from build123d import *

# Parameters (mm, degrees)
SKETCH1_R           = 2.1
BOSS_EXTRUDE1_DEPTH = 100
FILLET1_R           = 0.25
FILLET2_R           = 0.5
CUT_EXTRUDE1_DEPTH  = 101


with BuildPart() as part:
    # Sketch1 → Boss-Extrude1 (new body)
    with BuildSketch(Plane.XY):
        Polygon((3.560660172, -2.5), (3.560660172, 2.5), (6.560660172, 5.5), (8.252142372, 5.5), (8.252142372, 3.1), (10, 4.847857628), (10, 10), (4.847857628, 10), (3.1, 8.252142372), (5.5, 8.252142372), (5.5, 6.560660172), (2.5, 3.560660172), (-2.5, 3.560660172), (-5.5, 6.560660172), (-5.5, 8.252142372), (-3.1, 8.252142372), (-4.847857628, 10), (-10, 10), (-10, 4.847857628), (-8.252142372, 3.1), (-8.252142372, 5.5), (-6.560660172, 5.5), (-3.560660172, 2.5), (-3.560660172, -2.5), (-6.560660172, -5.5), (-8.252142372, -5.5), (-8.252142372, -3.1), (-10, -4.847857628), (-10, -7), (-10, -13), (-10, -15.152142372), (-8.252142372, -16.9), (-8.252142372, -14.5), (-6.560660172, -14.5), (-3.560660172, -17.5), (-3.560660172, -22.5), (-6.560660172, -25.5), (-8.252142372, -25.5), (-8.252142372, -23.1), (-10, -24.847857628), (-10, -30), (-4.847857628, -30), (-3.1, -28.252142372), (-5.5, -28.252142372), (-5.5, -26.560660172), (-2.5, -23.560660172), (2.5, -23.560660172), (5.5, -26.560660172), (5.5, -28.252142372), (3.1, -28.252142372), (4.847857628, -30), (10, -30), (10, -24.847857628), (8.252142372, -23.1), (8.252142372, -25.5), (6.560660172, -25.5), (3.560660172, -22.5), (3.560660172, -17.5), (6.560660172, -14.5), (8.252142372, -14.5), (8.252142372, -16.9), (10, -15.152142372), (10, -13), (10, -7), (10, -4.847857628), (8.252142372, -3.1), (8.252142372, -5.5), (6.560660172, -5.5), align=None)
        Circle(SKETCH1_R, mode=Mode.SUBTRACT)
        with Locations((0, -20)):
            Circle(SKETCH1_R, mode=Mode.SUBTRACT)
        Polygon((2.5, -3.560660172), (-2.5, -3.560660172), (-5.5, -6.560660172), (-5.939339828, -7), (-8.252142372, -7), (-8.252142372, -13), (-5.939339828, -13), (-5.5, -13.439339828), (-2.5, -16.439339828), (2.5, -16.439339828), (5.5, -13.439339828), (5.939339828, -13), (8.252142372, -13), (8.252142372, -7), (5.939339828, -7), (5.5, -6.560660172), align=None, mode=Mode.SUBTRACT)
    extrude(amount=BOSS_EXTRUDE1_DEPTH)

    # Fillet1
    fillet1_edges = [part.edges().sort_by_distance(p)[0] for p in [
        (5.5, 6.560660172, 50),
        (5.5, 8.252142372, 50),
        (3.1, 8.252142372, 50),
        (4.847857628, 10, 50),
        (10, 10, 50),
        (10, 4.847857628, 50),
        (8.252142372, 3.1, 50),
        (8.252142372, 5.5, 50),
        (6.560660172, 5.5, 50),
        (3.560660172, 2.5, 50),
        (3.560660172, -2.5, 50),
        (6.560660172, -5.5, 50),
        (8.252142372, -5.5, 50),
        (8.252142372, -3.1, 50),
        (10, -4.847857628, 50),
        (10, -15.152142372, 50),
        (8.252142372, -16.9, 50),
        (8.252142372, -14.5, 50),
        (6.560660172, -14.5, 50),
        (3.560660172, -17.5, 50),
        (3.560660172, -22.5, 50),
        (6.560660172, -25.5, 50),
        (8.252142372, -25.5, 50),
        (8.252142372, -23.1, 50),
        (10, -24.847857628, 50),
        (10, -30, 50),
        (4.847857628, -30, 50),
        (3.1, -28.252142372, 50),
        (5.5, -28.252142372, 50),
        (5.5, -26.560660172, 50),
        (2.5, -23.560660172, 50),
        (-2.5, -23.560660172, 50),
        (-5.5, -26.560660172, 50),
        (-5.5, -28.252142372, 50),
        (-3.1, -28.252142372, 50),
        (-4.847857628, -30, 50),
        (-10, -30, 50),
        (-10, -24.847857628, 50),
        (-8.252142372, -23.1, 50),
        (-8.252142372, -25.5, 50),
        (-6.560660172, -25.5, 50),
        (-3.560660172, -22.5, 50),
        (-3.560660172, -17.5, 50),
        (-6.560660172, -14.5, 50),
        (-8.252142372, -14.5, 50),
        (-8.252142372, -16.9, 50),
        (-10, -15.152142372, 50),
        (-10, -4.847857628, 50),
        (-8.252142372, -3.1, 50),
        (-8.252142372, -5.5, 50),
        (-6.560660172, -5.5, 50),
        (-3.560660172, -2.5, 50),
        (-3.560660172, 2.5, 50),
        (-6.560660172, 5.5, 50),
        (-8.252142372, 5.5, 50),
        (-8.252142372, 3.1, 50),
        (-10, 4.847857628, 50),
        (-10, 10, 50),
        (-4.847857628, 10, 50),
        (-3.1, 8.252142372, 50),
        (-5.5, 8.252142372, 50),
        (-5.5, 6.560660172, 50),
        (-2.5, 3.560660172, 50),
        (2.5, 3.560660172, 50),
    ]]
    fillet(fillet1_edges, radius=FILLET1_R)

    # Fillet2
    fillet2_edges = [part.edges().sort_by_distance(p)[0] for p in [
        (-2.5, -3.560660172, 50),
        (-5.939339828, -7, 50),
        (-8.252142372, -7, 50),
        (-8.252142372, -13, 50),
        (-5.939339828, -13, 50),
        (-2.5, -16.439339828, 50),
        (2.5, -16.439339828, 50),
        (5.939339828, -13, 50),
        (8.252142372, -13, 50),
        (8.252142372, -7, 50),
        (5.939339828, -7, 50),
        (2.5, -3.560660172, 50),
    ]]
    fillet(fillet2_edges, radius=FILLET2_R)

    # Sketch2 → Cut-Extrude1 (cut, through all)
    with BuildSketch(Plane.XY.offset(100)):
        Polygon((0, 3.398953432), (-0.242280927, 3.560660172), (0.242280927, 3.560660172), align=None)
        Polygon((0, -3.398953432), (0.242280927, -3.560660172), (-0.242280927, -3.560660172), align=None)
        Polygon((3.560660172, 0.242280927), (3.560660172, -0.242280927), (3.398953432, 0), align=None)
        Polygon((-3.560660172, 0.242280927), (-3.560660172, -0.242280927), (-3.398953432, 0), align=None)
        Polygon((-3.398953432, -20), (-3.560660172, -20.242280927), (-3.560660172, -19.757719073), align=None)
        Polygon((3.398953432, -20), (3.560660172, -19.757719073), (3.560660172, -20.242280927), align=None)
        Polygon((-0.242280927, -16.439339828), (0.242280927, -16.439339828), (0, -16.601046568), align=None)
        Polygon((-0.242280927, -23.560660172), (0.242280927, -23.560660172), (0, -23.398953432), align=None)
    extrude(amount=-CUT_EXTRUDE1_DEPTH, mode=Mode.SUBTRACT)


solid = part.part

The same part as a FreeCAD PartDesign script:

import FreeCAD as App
import Part
import Sketcher

V = App.Vector


def edges_at(feature, points):
    """Names of the edges that pass closest to the given points."""
    edges = feature.Shape.Edges
    near = lambda p: min(range(len(edges)), key=lambda i: edges[i].distToShape(Part.Vertex(*p))[0])
    return sorted({f"Edge{near(p) + 1}" for p in points})

doc = App.newDocument("Part")
body = doc.addObject("PartDesign::Body", "Body")

sketch1 = doc.addObject("Sketcher::SketchObject", "Sketch")
body.addObject(sketch1)
sketch1.AttachmentSupport = (doc.XY_Plane, [""])
sketch1.MapMode = "FlatFace"
sketch1.addGeometry([
    Part.LineSegment(V(3.56066, -2.5, 0), V(3.56066, 2.5, 0)),
    Part.LineSegment(V(3.56066, 2.5, 0), V(6.56066, 5.5, 0)),
    Part.LineSegment(V(6.56066, 5.5, 0), V(8.252142, 5.5, 0)),
    Part.LineSegment(V(8.252142, 5.5, 0), V(8.252142, 3.1, 0)),
    Part.LineSegment(V(8.252142, 3.1, 0), V(10, 4.847858, 0)),
    Part.LineSegment(V(10, 4.847858, 0), V(10, 10, 0)),
    Part.LineSegment(V(10, 10, 0), V(4.847858, 10, 0)),
    Part.LineSegment(V(4.847858, 10, 0), V(3.1, 8.252142, 0)),
    Part.LineSegment(V(3.1, 8.252142, 0), V(5.5, 8.252142, 0)),
    Part.LineSegment(V(5.5, 8.252142, 0), V(5.5, 6.56066, 0)),
    Part.LineSegment(V(5.5, 6.56066, 0), V(2.5, 3.56066, 0)),
    Part.LineSegment(V(2.5, 3.56066, 0), V(-2.5, 3.56066, 0)),
    Part.LineSegment(V(-2.5, 3.56066, 0), V(-5.5, 6.56066, 0)),
    Part.LineSegment(V(-5.5, 6.56066, 0), V(-5.5, 8.252142, 0)),
    Part.LineSegment(V(-5.5, 8.252142, 0), V(-3.1, 8.252142, 0)),
    Part.LineSegment(V(-3.1, 8.252142, 0), V(-4.847858, 10, 0)),
    Part.LineSegment(V(-4.847858, 10, 0), V(-10, 10, 0)),
    Part.LineSegment(V(-10, 10, 0), V(-10, 4.847858, 0)),
    Part.LineSegment(V(-10, 4.847858, 0), V(-8.252142, 3.1, 0)),
    Part.LineSegment(V(-8.252142, 3.1, 0), V(-8.252142, 5.5, 0)),
    Part.LineSegment(V(-8.252142, 5.5, 0), V(-6.56066, 5.5, 0)),
    Part.LineSegment(V(-6.56066, 5.5, 0), V(-3.56066, 2.5, 0)),
    Part.LineSegment(V(-3.56066, 2.5, 0), V(-3.56066, -2.5, 0)),
    Part.LineSegment(V(-3.56066, -2.5, 0), V(-6.56066, -5.5, 0)),
    Part.LineSegment(V(-6.56066, -5.5, 0), V(-8.252142, -5.5, 0)),
    Part.LineSegment(V(-8.252142, -5.5, 0), V(-8.252142, -3.1, 0)),
    Part.LineSegment(V(-8.252142, -3.1, 0), V(-10, -4.847858, 0)),
    Part.LineSegment(V(-10, -4.847858, 0), V(-10, -15.152142, 0)),
    Part.LineSegment(V(-10, -15.152142, 0), V(-8.252142, -16.9, 0)),
    Part.LineSegment(V(-8.252142, -16.9, 0), V(-8.252142, -14.5, 0)),
    Part.LineSegment(V(-8.252142, -14.5, 0), V(-6.56066, -14.5, 0)),
    Part.LineSegment(V(-6.56066, -14.5, 0), V(-3.56066, -17.5, 0)),
    Part.LineSegment(V(-3.56066, -17.5, 0), V(-3.56066, -22.5, 0)),
    Part.LineSegment(V(-3.56066, -22.5, 0), V(-6.56066, -25.5, 0)),
    Part.LineSegment(V(-6.56066, -25.5, 0), V(-8.252142, -25.5, 0)),
    Part.LineSegment(V(-8.252142, -25.5, 0), V(-8.252142, -23.1, 0)),
    Part.LineSegment(V(-8.252142, -23.1, 0), V(-10, -24.847858, 0)),
    Part.LineSegment(V(-10, -24.847858, 0), V(-10, -30, 0)),
    Part.LineSegment(V(-10, -30, 0), V(-4.847858, -30, 0)),
    Part.LineSegment(V(-4.847858, -30, 0), V(-3.1, -28.252142, 0)),
    Part.LineSegment(V(-3.1, -28.252142, 0), V(-5.5, -28.252142, 0)),
    Part.LineSegment(V(-5.5, -28.252142, 0), V(-5.5, -26.56066, 0)),
    Part.LineSegment(V(-5.5, -26.56066, 0), V(-2.5, -23.56066, 0)),
    Part.LineSegment(V(-2.5, -23.56066, 0), V(2.5, -23.56066, 0)),
    Part.LineSegment(V(2.5, -23.56066, 0), V(5.5, -26.56066, 0)),
    Part.LineSegment(V(5.5, -26.56066, 0), V(5.5, -28.252142, 0)),
    Part.LineSegment(V(5.5, -28.252142, 0), V(3.1, -28.252142, 0)),
    Part.LineSegment(V(3.1, -28.252142, 0), V(4.847858, -30, 0)),
    Part.LineSegment(V(4.847858, -30, 0), V(10, -30, 0)),
    Part.LineSegment(V(10, -30, 0), V(10, -24.847858, 0)),
    Part.LineSegment(V(10, -24.847858, 0), V(8.252142, -23.1, 0)),
    Part.LineSegment(V(8.252142, -23.1, 0), V(8.252142, -25.5, 0)),
    Part.LineSegment(V(8.252142, -25.5, 0), V(6.56066, -25.5, 0)),
    Part.LineSegment(V(6.56066, -25.5, 0), V(3.56066, -22.5, 0)),
    Part.LineSegment(V(3.56066, -22.5, 0), V(3.56066, -17.5, 0)),
    Part.LineSegment(V(3.56066, -17.5, 0), V(6.56066, -14.5, 0)),
    Part.LineSegment(V(6.56066, -14.5, 0), V(8.252142, -14.5, 0)),
    Part.LineSegment(V(8.252142, -14.5, 0), V(8.252142, -16.9, 0)),
    Part.LineSegment(V(8.252142, -16.9, 0), V(10, -15.152142, 0)),
    Part.LineSegment(V(10, -15.152142, 0), V(10, -4.847858, 0)),
    Part.LineSegment(V(10, -4.847858, 0), V(8.252142, -3.1, 0)),
    Part.LineSegment(V(8.252142, -3.1, 0), V(8.252142, -5.5, 0)),
    Part.LineSegment(V(8.252142, -5.5, 0), V(6.56066, -5.5, 0)),
    Part.LineSegment(V(6.56066, -5.5, 0), V(3.56066, -2.5, 0)),
    Part.Circle(V(0, -20, 0), V(0, 0, 1), 2.1),
    Part.LineSegment(V(-2.5, -3.56066, 0), V(2.5, -3.56066, 0)),
    Part.LineSegment(V(2.5, -3.56066, 0), V(5.93934, -7, 0)),
    Part.LineSegment(V(5.93934, -7, 0), V(8.252142, -7, 0)),
    Part.LineSegment(V(8.252142, -7, 0), V(8.252142, -13, 0)),
    Part.LineSegment(V(8.252142, -13, 0), V(5.93934, -13, 0)),
    Part.LineSegment(V(5.93934, -13, 0), V(2.5, -16.43934, 0)),
    Part.LineSegment(V(2.5, -16.43934, 0), V(-2.5, -16.43934, 0)),
    Part.LineSegment(V(-2.5, -16.43934, 0), V(-5.93934, -13, 0)),
    Part.LineSegment(V(-5.93934, -13, 0), V(-8.252142, -13, 0)),
    Part.LineSegment(V(-8.252142, -13, 0), V(-8.252142, -7, 0)),
    Part.LineSegment(V(-8.252142, -7, 0), V(-5.93934, -7, 0)),
    Part.LineSegment(V(-5.93934, -7, 0), V(-2.5, -3.56066, 0)),
    Part.Circle(V(0, 0, 0), V(0, 0, 1), 2.1),
], False)
sketch1.addConstraint([
    Sketcher.Constraint("Coincident", 0, 2, 1, 1),
    Sketcher.Constraint("Coincident", 1, 2, 2, 1),
    Sketcher.Constraint("Coincident", 2, 2, 3, 1),
    Sketcher.Constraint("Coincident", 3, 2, 4, 1),
    Sketcher.Constraint("Coincident", 4, 2, 5, 1),
    Sketcher.Constraint("Coincident", 5, 2, 6, 1),
    Sketcher.Constraint("Coincident", 6, 2, 7, 1),
    Sketcher.Constraint("Coincident", 7, 2, 8, 1),
    Sketcher.Constraint("Coincident", 8, 2, 9, 1),
    Sketcher.Constraint("Coincident", 9, 2, 10, 1),
    Sketcher.Constraint("Coincident", 10, 2, 11, 1),
    Sketcher.Constraint("Coincident", 11, 2, 12, 1),
    Sketcher.Constraint("Coincident", 12, 2, 13, 1),
    Sketcher.Constraint("Coincident", 13, 2, 14, 1),
    Sketcher.Constraint("Coincident", 14, 2, 15, 1),
    Sketcher.Constraint("Coincident", 15, 2, 16, 1),
    Sketcher.Constraint("Coincident", 16, 2, 17, 1),
    Sketcher.Constraint("Coincident", 17, 2, 18, 1),
    Sketcher.Constraint("Coincident", 18, 2, 19, 1),
    Sketcher.Constraint("Coincident", 19, 2, 20, 1),
    Sketcher.Constraint("Coincident", 20, 2, 21, 1),
    Sketcher.Constraint("Coincident", 21, 2, 22, 1),
    Sketcher.Constraint("Coincident", 22, 2, 23, 1),
    Sketcher.Constraint("Coincident", 23, 2, 24, 1),
    Sketcher.Constraint("Coincident", 24, 2, 25, 1),
    Sketcher.Constraint("Coincident", 25, 2, 26, 1),
    Sketcher.Constraint("Coincident", 26, 2, 27, 1),
    Sketcher.Constraint("Coincident", 27, 2, 28, 1),
    Sketcher.Constraint("Coincident", 28, 2, 29, 1),
    Sketcher.Constraint("Coincident", 29, 2, 30, 1),
    Sketcher.Constraint("Coincident", 30, 2, 31, 1),
    Sketcher.Constraint("Coincident", 31, 2, 32, 1),
    Sketcher.Constraint("Coincident", 32, 2, 33, 1),
    Sketcher.Constraint("Coincident", 33, 2, 34, 1),
    Sketcher.Constraint("Coincident", 34, 2, 35, 1),
    Sketcher.Constraint("Coincident", 35, 2, 36, 1),
    Sketcher.Constraint("Coincident", 36, 2, 37, 1),
    Sketcher.Constraint("Coincident", 37, 2, 38, 1),
    Sketcher.Constraint("Coincident", 38, 2, 39, 1),
    Sketcher.Constraint("Coincident", 39, 2, 40, 1),
    Sketcher.Constraint("Coincident", 40, 2, 41, 1),
    Sketcher.Constraint("Coincident", 41, 2, 42, 1),
    Sketcher.Constraint("Coincident", 42, 2, 43, 1),
    Sketcher.Constraint("Coincident", 43, 2, 44, 1),
    Sketcher.Constraint("Coincident", 44, 2, 45, 1),
    Sketcher.Constraint("Coincident", 45, 2, 46, 1),
    Sketcher.Constraint("Coincident", 46, 2, 47, 1),
    Sketcher.Constraint("Coincident", 47, 2, 48, 1),
    Sketcher.Constraint("Coincident", 48, 2, 49, 1),
    Sketcher.Constraint("Coincident", 49, 2, 50, 1),
    Sketcher.Constraint("Coincident", 50, 2, 51, 1),
    Sketcher.Constraint("Coincident", 51, 2, 52, 1),
    Sketcher.Constraint("Coincident", 52, 2, 53, 1),
    Sketcher.Constraint("Coincident", 53, 2, 54, 1),
    Sketcher.Constraint("Coincident", 54, 2, 55, 1),
    Sketcher.Constraint("Coincident", 55, 2, 56, 1),
    Sketcher.Constraint("Coincident", 56, 2, 57, 1),
    Sketcher.Constraint("Coincident", 57, 2, 58, 1),
    Sketcher.Constraint("Coincident", 58, 2, 59, 1),
    Sketcher.Constraint("Coincident", 59, 2, 60, 1),
    Sketcher.Constraint("Coincident", 60, 2, 61, 1),
    Sketcher.Constraint("Coincident", 61, 2, 62, 1),
    Sketcher.Constraint("Coincident", 62, 2, 63, 1),
    Sketcher.Constraint("Coincident", 63, 2, 0, 1),
    Sketcher.Constraint("Coincident", 65, 2, 66, 1),
    Sketcher.Constraint("Coincident", 66, 2, 67, 1),
    Sketcher.Constraint("Coincident", 67, 2, 68, 1),
    Sketcher.Constraint("Coincident", 68, 2, 69, 1),
    Sketcher.Constraint("Coincident", 69, 2, 70, 1),
    Sketcher.Constraint("Coincident", 70, 2, 71, 1),
    Sketcher.Constraint("Coincident", 71, 2, 72, 1),
    Sketcher.Constraint("Coincident", 72, 2, 73, 1),
    Sketcher.Constraint("Coincident", 73, 2, 74, 1),
    Sketcher.Constraint("Coincident", 74, 2, 75, 1),
    Sketcher.Constraint("Coincident", 75, 2, 76, 1),
    Sketcher.Constraint("Coincident", 76, 2, 65, 1),
    Sketcher.Constraint("Vertical", 0),
    Sketcher.Constraint("Horizontal", 2),
    Sketcher.Constraint("Vertical", 3),
    Sketcher.Constraint("Vertical", 5),
    Sketcher.Constraint("Horizontal", 6),
    Sketcher.Constraint("Horizontal", 8),
    Sketcher.Constraint("Vertical", 9),
    Sketcher.Constraint("Horizontal", 11),
    Sketcher.Constraint("Vertical", 13),
    Sketcher.Constraint("Horizontal", 14),
    Sketcher.Constraint("Horizontal", 16),
    Sketcher.Constraint("Vertical", 17),
    Sketcher.Constraint("Vertical", 19),
    Sketcher.Constraint("Horizontal", 20),
    Sketcher.Constraint("Vertical", 22),
    Sketcher.Constraint("Horizontal", 24),
    Sketcher.Constraint("Vertical", 25),
    Sketcher.Constraint("Vertical", 27),
    Sketcher.Constraint("Vertical", 29),
    Sketcher.Constraint("Horizontal", 30),
    Sketcher.Constraint("Vertical", 32),
    Sketcher.Constraint("Horizontal", 34),
    Sketcher.Constraint("Vertical", 35),
    Sketcher.Constraint("Vertical", 37),
    Sketcher.Constraint("Horizontal", 38),
    Sketcher.Constraint("Horizontal", 40),
    Sketcher.Constraint("Vertical", 41),
    Sketcher.Constraint("Horizontal", 43),
    Sketcher.Constraint("Vertical", 45),
    Sketcher.Constraint("Horizontal", 46),
    Sketcher.Constraint("Horizontal", 48),
    Sketcher.Constraint("Vertical", 49),
    Sketcher.Constraint("Vertical", 51),
    Sketcher.Constraint("Horizontal", 52),
    Sketcher.Constraint("Vertical", 54),
    Sketcher.Constraint("Horizontal", 56),
    Sketcher.Constraint("Vertical", 57),
    Sketcher.Constraint("Vertical", 59),
    Sketcher.Constraint("Vertical", 61),
    Sketcher.Constraint("Horizontal", 62),
    Sketcher.Constraint("Horizontal", 65),
    Sketcher.Constraint("Horizontal", 67),
    Sketcher.Constraint("Vertical", 68),
    Sketcher.Constraint("Horizontal", 69),
    Sketcher.Constraint("Horizontal", 71),
    Sketcher.Constraint("Horizontal", 73),
    Sketcher.Constraint("Vertical", 74),
    Sketcher.Constraint("Horizontal", 75),
    Sketcher.Constraint("Coincident", 77, 3, -1, 1),
    Sketcher.Constraint("Equal", 64, 77),
    Sketcher.Constraint("Symmetric", 0, 2, 22, 2, -1, 1),
    Sketcher.Constraint("Symmetric", 1, 2, 23, 2, -1, 1),
    Sketcher.Constraint("Symmetric", 3, 2, 25, 2, -1, 1),
    Sketcher.Constraint("Symmetric", 4, 2, 26, 2, -1, 1),
    Sketcher.Constraint("Symmetric", 17, 2, 59, 2, -1, 1),
    Sketcher.Constraint("Symmetric", 18, 2, 60, 2, -1, 1),
    Sketcher.Constraint("Symmetric", 20, 2, 62, 2, -1, 1),
    Sketcher.Constraint("Symmetric", 11, 2, 65, 2, -1, 1),
    Sketcher.Constraint("Symmetric", 9, 2, 12, 2, -2),
    Sketcher.Constraint("Symmetric", 7, 2, 14, 2, -2),
    Sketcher.Constraint("Symmetric", 6, 2, 15, 2, -2),
    Sketcher.Constraint("Symmetric", 4, 2, 17, 2, -2),
    Sketcher.Constraint("Symmetric", 3, 2, 18, 2, -2),
    Sketcher.Constraint("Symmetric", 1, 2, 20, 2, -2),
    Sketcher.Constraint("Symmetric", 41, 2, 44, 2, -2),
    Sketcher.Constraint("Symmetric", 39, 2, 46, 2, -2),
    Sketcher.Constraint("Symmetric", 38, 2, 47, 2, -2),
    Sketcher.Constraint("Symmetric", 36, 2, 49, 2, -2),
    Sketcher.Constraint("Symmetric", 35, 2, 50, 2, -2),
    Sketcher.Constraint("Symmetric", 33, 2, 52, 2, -2),
    Sketcher.Constraint("Symmetric", 32, 2, 53, 2, -2),
    Sketcher.Constraint("Symmetric", 30, 2, 55, 2, -2),
    Sketcher.Constraint("Symmetric", 28, 2, 57, 2, -2),
    Sketcher.Constraint("Symmetric", 69, 2, 72, 2, -2),
    Sketcher.Constraint("Symmetric", 67, 2, 74, 2, -2),
    Sketcher.Constraint("PointOnObject", 64, 3, -2),
    Sketcher.Constraint("Parallel", 1, 4),
    Sketcher.Constraint("Parallel", 4, 7),
    Sketcher.Constraint("Parallel", 7, 10),
    Sketcher.Constraint("Perpendicular", 10, 12),
    Sketcher.Constraint("Parallel", 12, 15),
    Sketcher.Constraint("Parallel", 18, 21),
    Sketcher.Constraint("Perpendicular", 26, 28),
    Sketcher.Constraint("Parallel", 28, 31),
    Sketcher.Constraint("Perpendicular", 31, 33),
    Sketcher.Constraint("Parallel", 33, 36),
    Sketcher.Constraint("Parallel", 36, 39),
    Sketcher.Constraint("Parallel", 39, 42),
    Sketcher.Constraint("Perpendicular", 42, 44),
    Sketcher.Constraint("Perpendicular", 53, 55),
    Sketcher.Constraint("Parallel", 55, 58),
    Sketcher.Constraint("Parallel", 60, 63),
    Sketcher.Constraint("Parallel", 63, 66),
    Sketcher.Constraint("Perpendicular", 66, 70),
    Sketcher.Constraint("Perpendicular", 70, 72),
    Sketcher.Constraint("Perpendicular", 72, 76),
    Sketcher.Constraint("Vertical", 25, 2, 28, 2),
    Sketcher.Constraint("Vertical", 23, 2, 30, 2),
    Sketcher.Constraint("Vertical", 22, 2, 31, 2),
    Sketcher.Constraint("Vertical", 30, 2, 33, 2),
    Sketcher.Constraint("Vertical", 29, 2, 34, 2),
    Sketcher.Constraint("Vertical", 27, 2, 36, 2),
    Sketcher.Constraint("Vertical", 15, 2, 38, 2),
    Sketcher.Constraint("Vertical", 14, 2, 39, 2),
    Sketcher.Constraint("Vertical", 13, 2, 40, 2),
    Sketcher.Constraint("Vertical", 11, 2, 42, 2),
    Sketcher.Constraint("Vertical", 61, 2, 67, 2),
    Sketcher.Constraint("Vertical", 66, 2, 69, 2),
    Sketcher.Constraint("Vertical", 65, 2, 70, 2),
    Sketcher.Constraint("Vertical", 72, 2, 75, 2),
    Sketcher.Constraint("Equal", 71, 0),
    Sketcher.Constraint("Equal", 46, 3),
    Sketcher.Constraint("Equal", 48, 5),
    Sketcher.Constraint("Equal", 62, 9),
    Sketcher.Constraint("Equal", 25, 29),
    Sketcher.Constraint("Equal", 22, 32),
    Sketcher.Constraint("Equal", 29, 35),
    Sketcher.Constraint("Equal", 17, 37),
    Sketcher.Constraint("Equal", 13, 41),
    Sketcher.Constraint("Equal", 4, 7),
    Sketcher.Constraint("Equal", 1, 10),
    Sketcher.Constraint("Diameter", 64, 4.2),
    Sketcher.Constraint("DistanceX", 11, 2, 11, 1, 5.0),
    Sketcher.Constraint("DistanceY", 68, 2, 68, 1, 6.0),
    Sketcher.Constraint("DistanceX", 8, 1, 8, 2, 2.4),
    Sketcher.Constraint("DistanceY", 64, 3, -1, 1, 20.0),
    Sketcher.Constraint("DistanceX", -1, 1, 4, 2, 10.0),
    Sketcher.Constraint("DistanceY", 37, 2, -1, 1, 30.0),
    Sketcher.Constraint("DistanceY", 66, 2, -1, 1, 7.0),
    Sketcher.Constraint("DistanceY", -1, 1, 1, 2, 5.5),
    Sketcher.Constraint("Distance", 66, 4.863961),
    Sketcher.Constraint("DistanceX", 2, 1, 2, 2, 1.691482),
])
pad1 = doc.addObject("PartDesign::Pad", "Pad")
body.addObject(pad1)
pad1.Profile = sketch1
pad1.Length = 100
doc.recompute()

fillet = doc.addObject("PartDesign::Fillet", "Fillet")
body.addObject(fillet)
fillet.Base = (pad1, edges_at(pad1, [
    (5.5, 6.561, 50),
    (5.5, 8.252, 50),
    (3.1, 8.252, 50),
    (4.848, 10, 50),
    (10, 10, 50),
    (10, 4.848, 50),
    (8.252, 3.1, 50),
    (8.252, 5.5, 50),
    (6.561, 5.5, 50),
    (3.561, 2.5, 50),
    (3.561, -2.5, 50),
    (6.561, -5.5, 50),
    (8.252, -5.5, 50),
    (8.252, -3.1, 50),
    (10, -4.848, 50),
    (10, -15.152, 50),
    (8.252, -16.9, 50),
    (8.252, -14.5, 50),
    (6.561, -14.5, 50),
    (3.561, -17.5, 50),
    (3.561, -22.5, 50),
    (6.561, -25.5, 50),
    (8.252, -25.5, 50),
    (8.252, -23.1, 50),
    (10, -24.848, 50),
    (10, -30, 50),
    (4.848, -30, 50),
    (3.1, -28.252, 50),
    (5.5, -28.252, 50),
    (5.5, -26.561, 50),
    (2.5, -23.561, 50),
    (-2.5, -23.561, 50),
    (-5.5, -26.561, 50),
    (-5.5, -28.252, 50),
    (-3.1, -28.252, 50),
    (-4.848, -30, 50),
    (-10, -30, 50),
    (-10, -24.848, 50),
    (-8.252, -23.1, 50),
    (-8.252, -25.5, 50),
    (-6.561, -25.5, 50),
    (-3.561, -22.5, 50),
    (-3.561, -17.5, 50),
    (-6.561, -14.5, 50),
    (-8.252, -14.5, 50),
    (-8.252, -16.9, 50),
    (-10, -15.152, 50),
    (-10, -4.848, 50),
    (-8.252, -3.1, 50),
    (-8.252, -5.5, 50),
    (-6.561, -5.5, 50),
    (-3.561, -2.5, 50),
    (-3.561, 2.5, 50),
    (-6.561, 5.5, 50),
    (-8.252, 5.5, 50),
    (-8.252, 3.1, 50),
    (-10, 4.848, 50),
    (-10, 10, 50),
    (-4.848, 10, 50),
    (-3.1, 8.252, 50),
    (-5.5, 8.252, 50),
    (-5.5, 6.561, 50),
    (-2.5, 3.561, 50),
    (2.5, 3.561, 50),
]))
fillet.Radius = 0.25
doc.recompute()

fillet2 = doc.addObject("PartDesign::Fillet", "Fillet001")
body.addObject(fillet2)
fillet2.Base = (fillet, edges_at(fillet, [
    (-2.5, -3.561, 50),
    (-5.939, -7, 50),
    (-8.252, -7, 50),
    (-8.252, -13, 50),
    (-5.939, -13, 50),
    (-2.5, -16.439, 50),
    (2.5, -16.439, 50),
    (5.939, -13, 50),
    (8.252, -13, 50),
    (8.252, -7, 50),
    (5.939, -7, 50),
    (2.5, -3.561, 50),
]))
fillet2.Radius = 0.5

sketch2 = doc.addObject("Sketcher::SketchObject", "Sketch001")
body.addObject(sketch2)
sketch2.AttachmentSupport = (doc.XY_Plane, [""])
sketch2.MapMode = "FlatFace"
sketch2.AttachmentOffset = App.Placement(V(0, 0, 100), App.Rotation())
sketch2.addGeometry([
    Part.LineSegment(V(-0.242281, 3.56066, 0), V(0, 3.398953, 0)),
    Part.LineSegment(V(0, 3.398953, 0), V(0.242281, 3.56066, 0)),
    Part.LineSegment(V(0.242281, 3.56066, 0), V(-0.242281, 3.56066, 0)),
    Part.LineSegment(V(0.242281, -3.56066, 0), V(0, -3.398953, 0)),
    Part.LineSegment(V(0, -3.398953, 0), V(-0.242281, -3.56066, 0)),
    Part.LineSegment(V(-0.242281, -3.56066, 0), V(0.242281, -3.56066, 0)),
    Part.LineSegment(V(3.56066, -0.242281, 0), V(3.56066, 0.242281, 0)),
    Part.LineSegment(V(3.56066, 0.242281, 0), V(3.398953, 0, 0)),
    Part.LineSegment(V(3.398953, 0, 0), V(3.56066, -0.242281, 0)),
    Part.LineSegment(V(-3.56066, 0.242281, 0), V(-3.56066, -0.242281, 0)),
    Part.LineSegment(V(-3.56066, -0.242281, 0), V(-3.398953, 0, 0)),
    Part.LineSegment(V(-3.398953, 0, 0), V(-3.56066, 0.242281, 0)),
    Part.LineSegment(V(-3.56066, -20.242281, 0), V(-3.398953, -20, 0)),
    Part.LineSegment(V(-3.398953, -20, 0), V(-3.56066, -19.757719, 0)),
    Part.LineSegment(V(-3.56066, -19.757719, 0), V(-3.56066, -20.242281, 0)),
    Part.LineSegment(V(3.56066, -19.757719, 0), V(3.398953, -20, 0)),
    Part.LineSegment(V(3.398953, -20, 0), V(3.56066, -20.242281, 0)),
    Part.LineSegment(V(3.56066, -20.242281, 0), V(3.56066, -19.757719, 0)),
    Part.LineSegment(V(0.242281, -16.43934, 0), V(-0.242281, -16.43934, 0)),
    Part.LineSegment(V(-0.242281, -16.43934, 0), V(0, -16.601047, 0)),
    Part.LineSegment(V(0, -16.601047, 0), V(0.242281, -16.43934, 0)),
    Part.LineSegment(V(-0.242281, -23.56066, 0), V(0.242281, -23.56066, 0)),
    Part.LineSegment(V(0.242281, -23.56066, 0), V(0, -23.398953, 0)),
    Part.LineSegment(V(0, -23.398953, 0), V(-0.242281, -23.56066, 0)),
], False)
sketch2.addConstraint([
    Sketcher.Constraint("Coincident", 0, 2, 1, 1),
    Sketcher.Constraint("Coincident", 1, 2, 2, 1),
    Sketcher.Constraint("Coincident", 2, 2, 0, 1),
    Sketcher.Constraint("Coincident", 3, 2, 4, 1),
    Sketcher.Constraint("Coincident", 4, 2, 5, 1),
    Sketcher.Constraint("Coincident", 5, 2, 3, 1),
    Sketcher.Constraint("Coincident", 6, 2, 7, 1),
    Sketcher.Constraint("Coincident", 7, 2, 8, 1),
    Sketcher.Constraint("Coincident", 8, 2, 6, 1),
    Sketcher.Constraint("Coincident", 9, 2, 10, 1),
    Sketcher.Constraint("Coincident", 10, 2, 11, 1),
    Sketcher.Constraint("Coincident", 11, 2, 9, 1),
    Sketcher.Constraint("Coincident", 12, 2, 13, 1),
    Sketcher.Constraint("Coincident", 13, 2, 14, 1),
    Sketcher.Constraint("Coincident", 14, 2, 12, 1),
    Sketcher.Constraint("Coincident", 15, 2, 16, 1),
    Sketcher.Constraint("Coincident", 16, 2, 17, 1),
    Sketcher.Constraint("Coincident", 17, 2, 15, 1),
    Sketcher.Constraint("Coincident", 18, 2, 19, 1),
    Sketcher.Constraint("Coincident", 19, 2, 20, 1),
    Sketcher.Constraint("Coincident", 20, 2, 18, 1),
    Sketcher.Constraint("Coincident", 21, 2, 22, 1),
    Sketcher.Constraint("Coincident", 22, 2, 23, 1),
    Sketcher.Constraint("Coincident", 23, 2, 21, 1),
    Sketcher.Constraint("Horizontal", 2),
    Sketcher.Constraint("Horizontal", 5),
    Sketcher.Constraint("Vertical", 6),
    Sketcher.Constraint("Vertical", 9),
    Sketcher.Constraint("Vertical", 14),
    Sketcher.Constraint("Vertical", 17),
    Sketcher.Constraint("Horizontal", 18),
    Sketcher.Constraint("Horizontal", 21),
    Sketcher.Constraint("Symmetric", 0, 2, 3, 2, -1, 1),
    Sketcher.Constraint("Symmetric", 1, 2, 4, 2, -1, 1),
    Sketcher.Constraint("Symmetric", 6, 2, 9, 2, -1, 1),
    Sketcher.Constraint("Symmetric", 7, 2, 10, 2, -1, 1),
    Sketcher.Constraint("Symmetric", 12, 2, 15, 2, -2),
    Sketcher.Constraint("Symmetric", 14, 2, 16, 2, -2),
    Sketcher.Constraint("PointOnObject", 0, 2, -2),
    Sketcher.Constraint("PointOnObject", 7, 2, -1),
    Sketcher.Constraint("PointOnObject", 19, 2, -2),
    Sketcher.Constraint("PointOnObject", 22, 2, -2),
    Sketcher.Constraint("Parallel", 0, 3),
    Sketcher.Constraint("Perpendicular", 3, 7),
    Sketcher.Constraint("Perpendicular", 4, 8),
    Sketcher.Constraint("Parallel", 8, 11),
    Sketcher.Constraint("Parallel", 10, 12),
    Sketcher.Constraint("Parallel", 11, 13),
    Sketcher.Constraint("Parallel", 12, 15),
    Sketcher.Constraint("Parallel", 13, 16),
    Sketcher.Constraint("Perpendicular", 15, 19),
    Sketcher.Constraint("Perpendicular", 16, 20),
    Sketcher.Constraint("Parallel", 19, 22),
    Sketcher.Constraint("Parallel", 20, 23),
    Sketcher.Constraint("Vertical", 10, 2, 12, 2),
    Sketcher.Constraint("Vertical", 11, 2, 13, 2),
    Sketcher.Constraint("Vertical", 4, 2, 18, 2),
    Sketcher.Constraint("Vertical", 20, 2, 21, 2),
    Sketcher.Constraint("Equal", 21, 6),
    Sketcher.Constraint("DistanceY", 12, 2, -1, 1, 20.0),
    Sketcher.Constraint("DistanceX", 2, 2, 2, 1, 0.484562),
    Sketcher.Constraint("Distance", 0, 0.291289),
    Sketcher.Constraint("DistanceY", -1, 1, 1, 2, 3.56066),
    Sketcher.Constraint("DistanceX", -1, 1, 6, 2, 3.56066),
    Sketcher.Constraint("DistanceY", 18, 2, -1, 1, 16.43934),
    Sketcher.Constraint("DistanceY", 21, 2, -1, 1, 23.56066),
])
pocket1 = doc.addObject("PartDesign::Pocket", "Pocket")
body.addObject(pocket1)
pocket1.Profile = sketch2
pocket1.Type = "ThroughAll"

doc.recompute()
